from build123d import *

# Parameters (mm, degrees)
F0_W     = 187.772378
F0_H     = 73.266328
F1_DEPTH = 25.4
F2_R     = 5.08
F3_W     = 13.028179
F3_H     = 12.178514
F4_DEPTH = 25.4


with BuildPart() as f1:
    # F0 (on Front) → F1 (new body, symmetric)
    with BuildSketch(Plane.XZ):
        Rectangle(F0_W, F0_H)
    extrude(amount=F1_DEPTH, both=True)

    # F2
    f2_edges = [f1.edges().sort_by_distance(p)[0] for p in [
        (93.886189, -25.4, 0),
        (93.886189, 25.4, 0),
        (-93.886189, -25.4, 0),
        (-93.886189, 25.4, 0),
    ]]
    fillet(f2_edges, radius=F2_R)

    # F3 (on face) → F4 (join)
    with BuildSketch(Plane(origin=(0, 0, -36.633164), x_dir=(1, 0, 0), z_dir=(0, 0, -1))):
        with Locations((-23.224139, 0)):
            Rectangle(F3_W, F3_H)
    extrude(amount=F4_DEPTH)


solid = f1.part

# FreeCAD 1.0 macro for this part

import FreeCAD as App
import Part
import Sketcher

V = App.Vector
Q = App.Units.Quantity


def edges_at(feature, points):
    """Names of the edges that pass closest to the given points."""
    edges = feature.Shape.Edges
    near = lambda p: min(range(len(edges)), key=lambda i: edges[i].distToShape(Part.Vertex(*p))[0])
    return sorted({f"Edge{near(p) + 1}" for p in points})

doc = App.newDocument("Part")
body = doc.addObject("PartDesign::Body", "Body")

sketch1 = doc.addObject("Sketcher::SketchObject", "Sketch")
body.addObject(sketch1)
sketch1.AttachmentSupport = (doc.XZ_Plane, [""])
sketch1.MapMode = "FlatFace"
sketch1.addGeometry([
    Part.LineSegment(V(-94, 37, 0), V(-94, -37, 0)),
    Part.LineSegment(V(-94, -37, 0), V(94, -37, 0)),
    Part.LineSegment(V(94, -37, 0), V(94, 37, 0)),
    Part.LineSegment(V(94, 37, 0), V(-94, 37, 0)),
], False)
sketch1.addConstraint([
    Sketcher.Constraint("Coincident", 0, 2, 1, 1),
    Sketcher.Constraint("Coincident", 1, 2, 2, 1),
    Sketcher.Constraint("Coincident", 2, 2, 3, 1),
    Sketcher.Constraint("Coincident", 3, 2, 0, 1),
    Sketcher.Constraint("Vertical", 0),
    Sketcher.Constraint("Horizontal", 1),
    Sketcher.Constraint("Vertical", 2),
    Sketcher.Constraint("Horizontal", 3),
    Sketcher.Constraint("Symmetric", 0, 2, 2, 2, -1, 1),
    Sketcher.Constraint("DistanceX", 1, 1, 1, 2, Q("187.772378 mm")),
    Sketcher.Constraint("DistanceY", 0, 2, 0, 1, Q("73.266328 mm")),
])
pad1 = doc.addObject("PartDesign::Pad", "Pad")
body.addObject(pad1)
pad1.Profile = sketch1
pad1.Length = Q("2 in")
pad1.Midplane = True
doc.recompute()

fillet = doc.addObject("PartDesign::Fillet", "Fillet")
body.addObject(fillet)
fillet.Base = (pad1, edges_at(pad1, [
    (93.886, -25.4, 0),
    (93.886, 25.4, 0),
    (-93.886, -25.4, 0),
    (-93.886, 25.4, 0),
]))
fillet.Radius = Q("0.2 in")

sketch2 = doc.addObject("Sketcher::SketchObject", "Sketch001")
body.addObject(sketch2)
sketch2.AttachmentSupport = (doc.XY_Plane, [""])
sketch2.MapMode = "FlatFace"
sketch2.AttachmentOffset = App.Placement(V(0, 0, -36.633164), App.Rotation())
sketch2.addGeometry([
    Part.LineSegment(V(-30, -6, 0), V(-30, 6, 0)),
    Part.LineSegment(V(-30, 6, 0), V(-17, 6, 0)),
    Part.LineSegment(V(-17, 6, 0), V(-17, -6, 0)),
    Part.LineSegment(V(-17, -6, 0), V(-30, -6, 0)),
], False)
sketch2.addConstraint([
    Sketcher.Constraint("Coincident", 0, 2, 1, 1),
    Sketcher.Constraint("Coincident", 1, 2, 2, 1),
    Sketcher.Constraint("Coincident", 2, 2, 3, 1),
    Sketcher.Constraint("Coincident", 3, 2, 0, 1),
    Sketcher.Constraint("Vertical", 0),
    Sketcher.Constraint("Horizontal", 1),
    Sketcher.Constraint("Vertical", 2),
    Sketcher.Constraint("Horizontal", 3),
    Sketcher.Constraint("DistanceX", 1, 1, 1, 2, Q("13.028179 mm")),
    Sketcher.Constraint("DistanceY", 0, 1, 0, 2, Q("12.178514 mm")),
    Sketcher.Constraint("DistanceX", 0, 2, -1, 1, Q("29.738229 mm")),
    Sketcher.Constraint("DistanceY", -1, 1, 0, 2, Q("6.089257 mm")),
])
pad2 = doc.addObject("PartDesign::Pad", "Pad001")
body.addObject(pad2)
pad2.Profile = sketch2
pad2.Length = Q("1 in")
pad2.Reversed = True

doc.recompute()
